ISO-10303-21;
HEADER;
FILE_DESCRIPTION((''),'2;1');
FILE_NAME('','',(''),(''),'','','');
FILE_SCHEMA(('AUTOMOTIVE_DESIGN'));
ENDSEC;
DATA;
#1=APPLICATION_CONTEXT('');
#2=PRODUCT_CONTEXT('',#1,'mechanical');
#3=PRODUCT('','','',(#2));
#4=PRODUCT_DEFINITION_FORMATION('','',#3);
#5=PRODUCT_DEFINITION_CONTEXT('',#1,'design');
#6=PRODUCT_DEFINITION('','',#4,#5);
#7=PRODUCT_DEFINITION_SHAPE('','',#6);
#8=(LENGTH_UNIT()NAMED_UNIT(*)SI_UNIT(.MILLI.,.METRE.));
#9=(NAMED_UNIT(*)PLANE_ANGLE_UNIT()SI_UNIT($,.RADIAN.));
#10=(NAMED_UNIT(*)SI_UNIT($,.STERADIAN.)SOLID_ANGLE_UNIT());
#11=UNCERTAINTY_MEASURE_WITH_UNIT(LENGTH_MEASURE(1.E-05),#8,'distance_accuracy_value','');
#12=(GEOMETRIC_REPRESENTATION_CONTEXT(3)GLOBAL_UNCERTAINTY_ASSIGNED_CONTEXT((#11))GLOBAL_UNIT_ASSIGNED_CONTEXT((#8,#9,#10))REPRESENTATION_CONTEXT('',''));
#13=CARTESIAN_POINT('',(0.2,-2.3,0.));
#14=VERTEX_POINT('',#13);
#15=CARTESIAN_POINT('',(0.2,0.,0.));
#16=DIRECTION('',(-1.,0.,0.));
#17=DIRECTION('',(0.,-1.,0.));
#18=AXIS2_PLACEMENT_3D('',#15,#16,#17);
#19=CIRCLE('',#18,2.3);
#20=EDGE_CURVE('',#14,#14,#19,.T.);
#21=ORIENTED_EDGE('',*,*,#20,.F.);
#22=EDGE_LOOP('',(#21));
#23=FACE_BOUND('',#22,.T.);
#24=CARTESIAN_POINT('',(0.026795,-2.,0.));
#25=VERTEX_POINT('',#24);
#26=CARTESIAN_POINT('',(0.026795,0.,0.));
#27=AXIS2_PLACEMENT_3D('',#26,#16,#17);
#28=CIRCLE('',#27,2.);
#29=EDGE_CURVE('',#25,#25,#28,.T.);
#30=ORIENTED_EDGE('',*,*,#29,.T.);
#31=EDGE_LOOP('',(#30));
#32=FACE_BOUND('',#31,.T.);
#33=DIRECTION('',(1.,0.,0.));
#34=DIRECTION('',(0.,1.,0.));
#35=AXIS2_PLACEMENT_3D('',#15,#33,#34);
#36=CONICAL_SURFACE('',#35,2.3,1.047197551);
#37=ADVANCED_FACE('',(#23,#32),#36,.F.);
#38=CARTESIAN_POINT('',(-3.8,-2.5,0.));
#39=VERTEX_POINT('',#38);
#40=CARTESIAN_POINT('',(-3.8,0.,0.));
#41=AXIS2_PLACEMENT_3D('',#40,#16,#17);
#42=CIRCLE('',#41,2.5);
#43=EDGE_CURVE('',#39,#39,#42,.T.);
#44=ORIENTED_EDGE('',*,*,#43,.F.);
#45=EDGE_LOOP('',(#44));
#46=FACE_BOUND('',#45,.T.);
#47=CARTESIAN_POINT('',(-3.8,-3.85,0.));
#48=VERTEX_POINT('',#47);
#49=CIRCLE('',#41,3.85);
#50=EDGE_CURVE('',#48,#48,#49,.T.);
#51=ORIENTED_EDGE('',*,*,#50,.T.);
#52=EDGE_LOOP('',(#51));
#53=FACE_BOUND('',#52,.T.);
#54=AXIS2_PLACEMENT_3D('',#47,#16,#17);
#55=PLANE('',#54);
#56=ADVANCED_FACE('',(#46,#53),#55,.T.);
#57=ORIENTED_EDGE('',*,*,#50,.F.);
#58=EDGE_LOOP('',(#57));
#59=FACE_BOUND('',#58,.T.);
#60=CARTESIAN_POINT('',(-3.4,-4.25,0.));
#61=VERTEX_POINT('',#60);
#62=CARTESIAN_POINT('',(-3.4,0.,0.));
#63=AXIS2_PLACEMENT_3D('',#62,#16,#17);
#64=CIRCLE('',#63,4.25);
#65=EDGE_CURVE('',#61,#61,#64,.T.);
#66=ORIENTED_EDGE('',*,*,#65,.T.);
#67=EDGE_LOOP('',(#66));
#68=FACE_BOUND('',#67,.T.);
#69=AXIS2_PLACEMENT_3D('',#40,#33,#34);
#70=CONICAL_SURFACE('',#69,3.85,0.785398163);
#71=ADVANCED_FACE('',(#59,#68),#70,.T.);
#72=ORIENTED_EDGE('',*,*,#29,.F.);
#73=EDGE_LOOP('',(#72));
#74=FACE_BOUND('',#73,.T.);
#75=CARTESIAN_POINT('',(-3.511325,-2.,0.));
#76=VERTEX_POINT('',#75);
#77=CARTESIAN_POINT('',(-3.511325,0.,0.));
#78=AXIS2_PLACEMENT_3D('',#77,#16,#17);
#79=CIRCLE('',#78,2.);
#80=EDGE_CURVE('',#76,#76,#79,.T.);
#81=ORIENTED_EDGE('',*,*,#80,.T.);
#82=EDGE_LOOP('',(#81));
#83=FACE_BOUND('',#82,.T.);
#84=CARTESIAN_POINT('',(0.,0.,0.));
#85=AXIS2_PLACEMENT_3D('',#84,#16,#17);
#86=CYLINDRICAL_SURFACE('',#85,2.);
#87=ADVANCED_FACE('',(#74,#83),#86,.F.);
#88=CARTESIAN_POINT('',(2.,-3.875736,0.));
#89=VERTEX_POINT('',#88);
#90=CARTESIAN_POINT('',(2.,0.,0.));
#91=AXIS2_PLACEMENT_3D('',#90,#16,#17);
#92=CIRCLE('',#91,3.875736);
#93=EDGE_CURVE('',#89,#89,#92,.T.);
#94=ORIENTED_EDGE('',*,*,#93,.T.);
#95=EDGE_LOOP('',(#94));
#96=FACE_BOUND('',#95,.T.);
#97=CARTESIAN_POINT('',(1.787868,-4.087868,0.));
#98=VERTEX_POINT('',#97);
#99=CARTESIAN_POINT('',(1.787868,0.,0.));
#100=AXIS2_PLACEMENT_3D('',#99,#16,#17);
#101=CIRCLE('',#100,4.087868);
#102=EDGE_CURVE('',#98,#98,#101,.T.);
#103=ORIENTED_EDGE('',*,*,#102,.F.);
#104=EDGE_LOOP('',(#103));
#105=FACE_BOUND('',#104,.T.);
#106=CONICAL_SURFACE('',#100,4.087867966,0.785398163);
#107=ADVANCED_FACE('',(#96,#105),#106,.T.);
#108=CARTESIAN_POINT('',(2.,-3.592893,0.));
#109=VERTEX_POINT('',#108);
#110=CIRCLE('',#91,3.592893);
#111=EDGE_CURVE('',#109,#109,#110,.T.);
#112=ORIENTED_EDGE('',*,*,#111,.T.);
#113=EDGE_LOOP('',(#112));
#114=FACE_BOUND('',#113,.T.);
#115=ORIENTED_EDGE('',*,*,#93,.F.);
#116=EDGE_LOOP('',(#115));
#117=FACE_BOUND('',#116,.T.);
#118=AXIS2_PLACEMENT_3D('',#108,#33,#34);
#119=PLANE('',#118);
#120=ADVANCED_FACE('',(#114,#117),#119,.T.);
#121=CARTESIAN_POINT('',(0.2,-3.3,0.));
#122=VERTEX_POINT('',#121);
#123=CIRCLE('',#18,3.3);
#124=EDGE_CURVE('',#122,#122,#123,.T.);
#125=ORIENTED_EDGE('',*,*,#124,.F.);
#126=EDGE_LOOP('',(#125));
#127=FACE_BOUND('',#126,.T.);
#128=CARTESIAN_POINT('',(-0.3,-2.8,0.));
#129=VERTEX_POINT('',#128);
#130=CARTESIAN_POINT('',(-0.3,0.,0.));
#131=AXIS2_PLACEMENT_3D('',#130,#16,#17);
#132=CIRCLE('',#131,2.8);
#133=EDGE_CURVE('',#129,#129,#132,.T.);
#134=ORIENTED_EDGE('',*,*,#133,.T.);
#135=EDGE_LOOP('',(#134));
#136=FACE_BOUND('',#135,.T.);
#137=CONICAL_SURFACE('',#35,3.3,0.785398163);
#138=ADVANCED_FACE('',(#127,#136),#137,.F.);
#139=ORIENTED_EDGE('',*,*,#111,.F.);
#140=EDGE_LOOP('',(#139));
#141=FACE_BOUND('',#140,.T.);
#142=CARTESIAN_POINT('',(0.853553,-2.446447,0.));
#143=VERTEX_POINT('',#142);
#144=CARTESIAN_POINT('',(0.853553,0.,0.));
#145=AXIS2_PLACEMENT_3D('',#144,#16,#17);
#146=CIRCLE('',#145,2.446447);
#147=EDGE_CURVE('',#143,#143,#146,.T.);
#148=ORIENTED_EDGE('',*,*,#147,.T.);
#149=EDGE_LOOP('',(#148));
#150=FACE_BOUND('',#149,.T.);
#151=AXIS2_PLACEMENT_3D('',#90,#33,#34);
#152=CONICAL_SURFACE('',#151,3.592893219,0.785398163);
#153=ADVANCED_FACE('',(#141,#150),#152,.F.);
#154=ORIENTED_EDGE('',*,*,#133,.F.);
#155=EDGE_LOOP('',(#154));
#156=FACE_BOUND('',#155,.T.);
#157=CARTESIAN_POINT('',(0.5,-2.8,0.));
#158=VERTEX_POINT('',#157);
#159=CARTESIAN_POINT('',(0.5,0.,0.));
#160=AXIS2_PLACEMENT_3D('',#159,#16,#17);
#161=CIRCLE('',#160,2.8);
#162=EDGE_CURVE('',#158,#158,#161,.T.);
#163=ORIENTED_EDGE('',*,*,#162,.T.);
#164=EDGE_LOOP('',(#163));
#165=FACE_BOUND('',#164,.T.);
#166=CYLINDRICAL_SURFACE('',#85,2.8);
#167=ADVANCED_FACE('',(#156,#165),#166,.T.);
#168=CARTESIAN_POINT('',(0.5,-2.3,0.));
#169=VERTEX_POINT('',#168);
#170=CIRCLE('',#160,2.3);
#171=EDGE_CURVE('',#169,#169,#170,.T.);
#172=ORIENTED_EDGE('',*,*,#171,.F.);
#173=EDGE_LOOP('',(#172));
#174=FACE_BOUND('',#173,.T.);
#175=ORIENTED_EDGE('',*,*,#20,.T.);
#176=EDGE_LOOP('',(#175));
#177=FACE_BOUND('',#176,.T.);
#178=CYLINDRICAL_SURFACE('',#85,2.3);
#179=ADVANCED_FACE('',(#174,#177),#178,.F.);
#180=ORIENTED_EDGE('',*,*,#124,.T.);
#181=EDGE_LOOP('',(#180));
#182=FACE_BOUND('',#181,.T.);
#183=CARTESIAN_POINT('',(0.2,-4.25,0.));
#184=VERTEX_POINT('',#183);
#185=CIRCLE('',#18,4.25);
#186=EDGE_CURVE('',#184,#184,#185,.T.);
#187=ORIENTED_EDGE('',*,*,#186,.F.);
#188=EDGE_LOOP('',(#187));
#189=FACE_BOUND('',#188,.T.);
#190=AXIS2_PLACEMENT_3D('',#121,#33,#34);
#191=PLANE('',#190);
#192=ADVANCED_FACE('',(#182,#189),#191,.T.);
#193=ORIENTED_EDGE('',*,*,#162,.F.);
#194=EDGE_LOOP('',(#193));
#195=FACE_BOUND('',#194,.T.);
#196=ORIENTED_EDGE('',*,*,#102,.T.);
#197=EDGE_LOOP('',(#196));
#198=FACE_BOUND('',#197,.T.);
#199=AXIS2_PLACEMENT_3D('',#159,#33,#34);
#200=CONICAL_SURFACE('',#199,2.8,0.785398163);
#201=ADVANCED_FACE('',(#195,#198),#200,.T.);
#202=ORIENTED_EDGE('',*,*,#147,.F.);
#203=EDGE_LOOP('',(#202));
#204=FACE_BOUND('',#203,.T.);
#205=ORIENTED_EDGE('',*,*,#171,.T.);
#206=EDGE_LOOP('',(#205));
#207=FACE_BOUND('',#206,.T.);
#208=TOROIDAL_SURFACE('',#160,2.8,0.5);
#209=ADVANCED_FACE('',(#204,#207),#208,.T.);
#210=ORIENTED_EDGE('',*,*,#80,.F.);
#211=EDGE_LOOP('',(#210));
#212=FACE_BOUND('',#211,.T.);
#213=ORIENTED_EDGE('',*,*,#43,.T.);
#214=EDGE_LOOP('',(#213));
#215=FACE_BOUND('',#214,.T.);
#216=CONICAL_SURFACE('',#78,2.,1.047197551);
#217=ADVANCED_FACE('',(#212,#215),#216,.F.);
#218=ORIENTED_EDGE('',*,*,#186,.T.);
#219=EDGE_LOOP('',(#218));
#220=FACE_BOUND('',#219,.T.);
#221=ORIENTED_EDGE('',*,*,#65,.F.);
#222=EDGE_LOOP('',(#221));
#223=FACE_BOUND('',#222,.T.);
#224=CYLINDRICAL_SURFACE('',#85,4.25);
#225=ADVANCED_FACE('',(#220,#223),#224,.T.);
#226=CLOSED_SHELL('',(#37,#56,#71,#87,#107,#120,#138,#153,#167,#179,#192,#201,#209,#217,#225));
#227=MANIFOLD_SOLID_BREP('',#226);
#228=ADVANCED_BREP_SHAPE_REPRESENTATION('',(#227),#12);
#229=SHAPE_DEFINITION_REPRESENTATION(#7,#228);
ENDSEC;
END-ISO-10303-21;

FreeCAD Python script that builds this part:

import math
import FreeCAD as App
import Part
import Sketcher

V = App.Vector
Q = App.Units.Quantity

doc = App.newDocument("Part")
body = doc.addObject("PartDesign::Body", "Body")

# Sketch on XY plane
sketch1 = doc.addObject("Sketcher::SketchObject", "Sketch")
body.addObject(sketch1)
sketch1.AttachmentSupport = (doc.XY_Plane, [""])
sketch1.MapMode = "FlatFace"
sketch1.addGeometry([
    Part.LineSegment(V(-0.3, -2.8, 0), V(0.5, -2.8, 0)),  # 0
    Part.LineSegment(V(0.5, -2.8, 0), V(1.787868, -4.087868, 0)),  # 1
    Part.LineSegment(V(1.787868, -4.087868, 0), V(2, -3.875736, 0)),  # 2
    Part.LineSegment(V(2, -3.875736, 0), V(2, -3.592893, 0)),  # 3
    Part.LineSegment(V(2, -3.592893, 0), V(0.853553, -2.446447, 0)),  # 4
    Part.ArcOfCircle(Part.Circle(V(0.5, -2.8, 0), V(0, 0, 1), 0.5), math.radians(45), math.radians(90)),  # 5
    Part.LineSegment(V(0.5, -2.3, 0), V(0.2, -2.3, 0)),  # 6
    Part.LineSegment(V(0.2, -2.3, 0), V(0.026795, -2, 0)),  # 7
    Part.LineSegment(V(0.026795, -2, 0), V(-3.511325, -2, 0)),  # 8
    Part.LineSegment(V(-3.511325, -2, 0), V(-3.8, -2.5, 0)),  # 9
    Part.LineSegment(V(-3.8, -2.5, 0), V(-3.8, -3.85, 0)),  # 10
    Part.LineSegment(V(-3.8, -3.85, 0), V(-3.4, -4.25, 0)),  # 11
    Part.LineSegment(V(-3.4, -4.25, 0), V(0.2, -4.25, 0)),  # 12
    Part.LineSegment(V(0.2, -4.25, 0), V(0.2, -3.3, 0)),  # 13
    Part.LineSegment(V(0.2, -3.3, 0), V(-0.3, -2.8, 0)),  # 14
], False)
sketch1.addConstraint([
    Sketcher.Constraint("Coincident", 0, 2, 1, 1),
    Sketcher.Constraint("Coincident", 1, 2, 2, 1),
    Sketcher.Constraint("Coincident", 2, 2, 3, 1),
    Sketcher.Constraint("Coincident", 3, 2, 4, 1),
    Sketcher.Constraint("Tangent", 4, 2, 5, 1),
    Sketcher.Constraint("Tangent", 5, 2, 6, 1),
    Sketcher.Constraint("Coincident", 6, 2, 7, 1),
    Sketcher.Constraint("Coincident", 7, 2, 8, 1),
    Sketcher.Constraint("Coincident", 8, 2, 9, 1),
    Sketcher.Constraint("Coincident", 9, 2, 10, 1),
    Sketcher.Constraint("Coincident", 10, 2, 11, 1),
    Sketcher.Constraint("Coincident", 11, 2, 12, 1),
    Sketcher.Constraint("Coincident", 12, 2, 13, 1),
    Sketcher.Constraint("Coincident", 13, 2, 14, 1),
    Sketcher.Constraint("Coincident", 14, 2, 0, 1),
    Sketcher.Constraint("Horizontal", 0),
    Sketcher.Constraint("Vertical", 3),
    Sketcher.Constraint("Horizontal", 6),
    Sketcher.Constraint("Horizontal", 8),
    Sketcher.Constraint("Vertical", 10),
    Sketcher.Constraint("Horizontal", 12),
    Sketcher.Constraint("Vertical", 13),
    Sketcher.Constraint("Coincident", 0, 2, 5, 3),
    Sketcher.Constraint("Perpendicular", 1, 2),
    Sketcher.Constraint("Perpendicular", 2, 4),
    Sketcher.Constraint("Parallel", 4, 11),
    Sketcher.Constraint("Parallel", 11, 14),
    Sketcher.Constraint("Vertical", 6, 2, 12, 2),
    Sketcher.Constraint("Radius", 5, 0.5),
    Sketcher.Constraint("Angle", 1, Q("-45 deg")),
    Sketcher.Constraint("Angle", 7, Q("120 deg")),
    Sketcher.Constraint("Angle", 9, Q("-120 deg")),
    Sketcher.Constraint("DistanceX", 0, 1, 0, 2, 0.8),
    Sketcher.Constraint("DistanceX", 6, 2, 6, 1, 0.3),
    Sketcher.Constraint("DistanceX", 12, 1, 12, 2, 3.6),
    Sketcher.Constraint("DistanceX", -1, 1, 2, 2, 2.0),
    Sketcher.Constraint("DistanceY", 7, 2, -1, 1, 2.0),
    Sketcher.Constraint("DistanceX", 9, 2, 6, 2, 4.0),
    Sketcher.Constraint("Distance", 2, 0.3),
    Sketcher.Constraint("DistanceY", 10, 2, 10, 1, 1.35),
    Sketcher.Constraint("DistanceY", 13, 1, 13, 2, 0.95),
    Sketcher.Constraint("DistanceX", -1, 1, 5, 3, 0.5),
    Sketcher.Constraint("DistanceY", 5, 3, -1, 1, 2.8),
])
revolution = doc.addObject("PartDesign::Revolution", "Revolution")
body.addObject(revolution)
revolution.Profile = sketch1
revolution.ReferenceAxis = (sketch1, ["H_Axis"])
revolution.Angle = 360

doc.recompute()
